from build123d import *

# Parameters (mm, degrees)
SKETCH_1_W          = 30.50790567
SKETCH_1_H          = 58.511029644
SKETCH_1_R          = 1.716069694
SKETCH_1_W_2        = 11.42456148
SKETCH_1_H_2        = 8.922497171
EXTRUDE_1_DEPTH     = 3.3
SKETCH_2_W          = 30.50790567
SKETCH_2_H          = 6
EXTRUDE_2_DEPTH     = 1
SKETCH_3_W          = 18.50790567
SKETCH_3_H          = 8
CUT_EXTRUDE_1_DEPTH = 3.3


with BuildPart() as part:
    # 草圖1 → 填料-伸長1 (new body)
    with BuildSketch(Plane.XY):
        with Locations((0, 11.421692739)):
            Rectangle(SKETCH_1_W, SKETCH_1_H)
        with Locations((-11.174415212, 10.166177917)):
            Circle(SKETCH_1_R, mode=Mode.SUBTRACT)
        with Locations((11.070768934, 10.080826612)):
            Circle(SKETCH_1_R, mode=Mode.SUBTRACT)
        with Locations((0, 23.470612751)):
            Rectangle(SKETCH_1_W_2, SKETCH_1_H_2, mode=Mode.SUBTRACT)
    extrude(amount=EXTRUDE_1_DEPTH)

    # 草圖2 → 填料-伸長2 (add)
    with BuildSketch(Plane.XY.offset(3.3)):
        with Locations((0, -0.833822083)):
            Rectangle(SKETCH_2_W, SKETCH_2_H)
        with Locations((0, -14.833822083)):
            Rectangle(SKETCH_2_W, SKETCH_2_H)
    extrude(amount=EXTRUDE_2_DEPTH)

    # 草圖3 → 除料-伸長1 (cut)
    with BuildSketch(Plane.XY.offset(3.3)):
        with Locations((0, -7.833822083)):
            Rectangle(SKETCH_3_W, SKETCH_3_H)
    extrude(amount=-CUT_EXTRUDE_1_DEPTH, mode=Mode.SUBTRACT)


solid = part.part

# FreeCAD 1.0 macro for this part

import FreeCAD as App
import Part
import Sketcher


def add_polygon(sketch, points):
    """Adds a closed chain of lines whose ends are joined by coincident constraints."""
    first, n = sketch.GeometryCount, len(points)
    for a, b in zip(points, points[1:] + points[:1]):
        sketch.addGeometry(Part.LineSegment(App.Vector(*a, 0), App.Vector(*b, 0)), False)
    for i in range(n):
        sketch.addConstraint(Sketcher.Constraint("Coincident", first + i, 2, first + (i + 1) % n, 1))

doc = App.newDocument("Part")
body = doc.addObject("PartDesign::Body", "Body")

# Sketch on XY plane
sketch1 = doc.addObject("Sketcher::SketchObject", "Sketch")
body.addObject(sketch1)
sketch1.AttachmentSupport = (doc.XY_Plane, [""])
sketch1.MapMode = "FlatFace"
add_polygon(sketch1, [(-15.3, 40.7), (-15.3, -17.8), (15.3, -17.8), (15.3, 40.7)])  # lines 0-3
sketch1.addGeometry(Part.Circle(App.Vector(-11.2, 10.2, 0), App.Vector(0, 0, 1), 1.7), False)  # 4
sketch1.addGeometry(Part.Circle(App.Vector(11.1, 10.1, 0), App.Vector(0, 0, 1), 1.7), False)  # 5
add_polygon(sketch1, [(5.7, 19), (-5.7, 19), (-5.7, 27.9), (5.7, 27.9)])  # lines 6-9
sketch1.addConstraint([
    Sketcher.Constraint("Vertical", 0),
    Sketcher.Constraint("Horizontal", 1),
    Sketcher.Constraint("Vertical", 2),
    Sketcher.Constraint("Horizontal", 3),
    Sketcher.Constraint("Horizontal", 6),
    Sketcher.Constraint("Vertical", 7),
    Sketcher.Constraint("Horizontal", 8),
    Sketcher.Constraint("Vertical", 9),
    Sketcher.Constraint("Equal", 4, 5),
    Sketcher.Constraint("DistanceY", 0, 2, 4, 3, 28.0),
    Sketcher.Constraint("Diameter", 4, 3.432139),
    Sketcher.Constraint("DistanceX", 6, 2, 6, 1, 11.424561),
    Sketcher.Constraint("DistanceY", 0, 2, 0, 1, 58.51103),
    Sketcher.Constraint("DistanceX", 1, 1, 1, 2, 30.507906),
    Sketcher.Constraint("DistanceY", 7, 1, 7, 2, 8.922497),
    Sketcher.Constraint("DistanceX", -1, 1, 5, 3, 11.070769),
    Sketcher.Constraint("DistanceX", 6, 2, -1, 1, 5.712281),
    Sketcher.Constraint("DistanceY", -1, 1, 7, 2, 27.931861),
    Sketcher.Constraint("DistanceY", 5, 3, 4, 3, 0.085351),
    Sketcher.Constraint("DistanceX", 0, 2, 5, 3, 26.324722),
    Sketcher.Constraint("DistanceX", 4, 3, 1, 2, 26.428368),
    Sketcher.Constraint("DistanceY", -1, 1, 4, 3, 10.166178),
])
pad1 = doc.addObject("PartDesign::Pad", "Pad")
body.addObject(pad1)
pad1.Profile = sketch1
pad1.Length = 3.3

# Sketch on XY plane
sketch2 = doc.addObject("Sketcher::SketchObject", "Sketch001")
body.addObject(sketch2)
sketch2.AttachmentSupport = (doc.XY_Plane, [""])
sketch2.MapMode = "FlatFace"
sketch2.AttachmentOffset = App.Placement(App.Vector(0, 0, 3.3), App.Rotation())
add_polygon(sketch2, [(-15, 2), (-15, -4), (15, -4), (15, 2)])  # lines 0-3
add_polygon(sketch2, [(-15, -12), (-15, -18), (15, -18), (15, -12)])  # lines 4-7
sketch2.addConstraint([
    Sketcher.Constraint("Vertical", 0),
    Sketcher.Constraint("Horizontal", 1),
    Sketcher.Constraint("Vertical", 2),
    Sketcher.Constraint("Horizontal", 3),
    Sketcher.Constraint("Vertical", 4),
    Sketcher.Constraint("Horizontal", 5),
    Sketcher.Constraint("Vertical", 6),
    Sketcher.Constraint("Horizontal", 7),
    Sketcher.Constraint("Vertical", 3, 2, 4, 2),
    Sketcher.Constraint("Vertical", 2, 2, 5, 2),
    Sketcher.Constraint("Equal", 2, 4),
    Sketcher.Constraint("DistanceY", 0, 2, 0, 1, 6.0),
    Sketcher.Constraint("DistanceY", 4, 2, 0, 2, 14.0),
    Sketcher.Constraint("DistanceX", 1, 1, 1, 2, 30.507906),
    Sketcher.Constraint("DistanceX", 0, 2, -1, 1, 15.253953),
    Sketcher.Constraint("DistanceY", 0, 2, -1, 1, 3.833822),
])
pad2 = doc.addObject("PartDesign::Pad", "Pad001")
body.addObject(pad2)
pad2.Profile = sketch2
pad2.Length = 1

# Sketch on XY plane
sketch3 = doc.addObject("Sketcher::SketchObject", "Sketch002")
body.addObject(sketch3)
sketch3.AttachmentSupport = (doc.XY_Plane, [""])
sketch3.MapMode = "FlatFace"
sketch3.AttachmentOffset = App.Placement(App.Vector(0, 0, 3.3), App.Rotation())
add_polygon(sketch3, [(-9, -4), (-9, -12), (9, -12), (9, -4)])  # lines 0-3
sketch3.addConstraint([
    Sketcher.Constraint("Vertical", 0),
    Sketcher.Constraint("Horizontal", 1),
    Sketcher.Constraint("Vertical", 2),
    Sketcher.Constraint("Horizontal", 3),
    Sketcher.Constraint("DistanceY", 0, 2, 0, 1, 8.0),
    Sketcher.Constraint("DistanceX", 1, 1, 1, 2, 18.507906),
    Sketcher.Constraint("DistanceX", 0, 2, -1, 1, 9.253953),
    Sketcher.Constraint("DistanceY", 0, 2, -1, 1, 11.833822),
])
pocket1 = doc.addObject("PartDesign::Pocket", "Pocket")
body.addObject(pocket1)
pocket1.Profile = sketch3
pocket1.Length = 3.3

doc.recompute()
